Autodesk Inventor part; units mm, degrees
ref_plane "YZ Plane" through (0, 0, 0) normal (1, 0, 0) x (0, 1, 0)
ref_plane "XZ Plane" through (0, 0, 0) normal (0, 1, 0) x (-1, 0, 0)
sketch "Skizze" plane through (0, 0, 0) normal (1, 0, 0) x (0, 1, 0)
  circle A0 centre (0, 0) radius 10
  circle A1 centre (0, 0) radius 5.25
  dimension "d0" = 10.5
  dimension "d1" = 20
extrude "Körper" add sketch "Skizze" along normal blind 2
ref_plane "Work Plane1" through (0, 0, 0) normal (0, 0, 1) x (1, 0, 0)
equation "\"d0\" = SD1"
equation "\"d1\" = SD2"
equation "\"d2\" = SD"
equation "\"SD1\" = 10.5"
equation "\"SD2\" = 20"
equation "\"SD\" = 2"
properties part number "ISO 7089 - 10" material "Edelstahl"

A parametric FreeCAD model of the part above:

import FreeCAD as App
import Part
import Sketcher

doc = App.newDocument("Part")
body = doc.addObject("PartDesign::Body", "Body")

sketch1 = doc.addObject("Sketcher::SketchObject", "Sketch")
body.addObject(sketch1)
sketch1.AttachmentSupport = (doc.YZ_Plane, [""])
sketch1.MapMode = "FlatFace"
sketch1.addGeometry([
    Part.Circle(App.Vector(0, 0, 0), App.Vector(0, 0, 1), 10),
    Part.Circle(App.Vector(0, 0, 0), App.Vector(0, 0, 1), 5.25),
], False)
sketch1.addConstraint([
    Sketcher.Constraint("Coincident", 0, 3, -1, 1),
    Sketcher.Constraint("Coincident", 1, 3, -1, 1),
    Sketcher.Constraint("Diameter", 0, 20.0),
    Sketcher.Constraint("Diameter", 1, 10.5),
])
pad1 = doc.addObject("PartDesign::Pad", "Pad")
body.addObject(pad1)
pad1.Profile = sketch1
pad1.Length = 2

doc.recompute()
